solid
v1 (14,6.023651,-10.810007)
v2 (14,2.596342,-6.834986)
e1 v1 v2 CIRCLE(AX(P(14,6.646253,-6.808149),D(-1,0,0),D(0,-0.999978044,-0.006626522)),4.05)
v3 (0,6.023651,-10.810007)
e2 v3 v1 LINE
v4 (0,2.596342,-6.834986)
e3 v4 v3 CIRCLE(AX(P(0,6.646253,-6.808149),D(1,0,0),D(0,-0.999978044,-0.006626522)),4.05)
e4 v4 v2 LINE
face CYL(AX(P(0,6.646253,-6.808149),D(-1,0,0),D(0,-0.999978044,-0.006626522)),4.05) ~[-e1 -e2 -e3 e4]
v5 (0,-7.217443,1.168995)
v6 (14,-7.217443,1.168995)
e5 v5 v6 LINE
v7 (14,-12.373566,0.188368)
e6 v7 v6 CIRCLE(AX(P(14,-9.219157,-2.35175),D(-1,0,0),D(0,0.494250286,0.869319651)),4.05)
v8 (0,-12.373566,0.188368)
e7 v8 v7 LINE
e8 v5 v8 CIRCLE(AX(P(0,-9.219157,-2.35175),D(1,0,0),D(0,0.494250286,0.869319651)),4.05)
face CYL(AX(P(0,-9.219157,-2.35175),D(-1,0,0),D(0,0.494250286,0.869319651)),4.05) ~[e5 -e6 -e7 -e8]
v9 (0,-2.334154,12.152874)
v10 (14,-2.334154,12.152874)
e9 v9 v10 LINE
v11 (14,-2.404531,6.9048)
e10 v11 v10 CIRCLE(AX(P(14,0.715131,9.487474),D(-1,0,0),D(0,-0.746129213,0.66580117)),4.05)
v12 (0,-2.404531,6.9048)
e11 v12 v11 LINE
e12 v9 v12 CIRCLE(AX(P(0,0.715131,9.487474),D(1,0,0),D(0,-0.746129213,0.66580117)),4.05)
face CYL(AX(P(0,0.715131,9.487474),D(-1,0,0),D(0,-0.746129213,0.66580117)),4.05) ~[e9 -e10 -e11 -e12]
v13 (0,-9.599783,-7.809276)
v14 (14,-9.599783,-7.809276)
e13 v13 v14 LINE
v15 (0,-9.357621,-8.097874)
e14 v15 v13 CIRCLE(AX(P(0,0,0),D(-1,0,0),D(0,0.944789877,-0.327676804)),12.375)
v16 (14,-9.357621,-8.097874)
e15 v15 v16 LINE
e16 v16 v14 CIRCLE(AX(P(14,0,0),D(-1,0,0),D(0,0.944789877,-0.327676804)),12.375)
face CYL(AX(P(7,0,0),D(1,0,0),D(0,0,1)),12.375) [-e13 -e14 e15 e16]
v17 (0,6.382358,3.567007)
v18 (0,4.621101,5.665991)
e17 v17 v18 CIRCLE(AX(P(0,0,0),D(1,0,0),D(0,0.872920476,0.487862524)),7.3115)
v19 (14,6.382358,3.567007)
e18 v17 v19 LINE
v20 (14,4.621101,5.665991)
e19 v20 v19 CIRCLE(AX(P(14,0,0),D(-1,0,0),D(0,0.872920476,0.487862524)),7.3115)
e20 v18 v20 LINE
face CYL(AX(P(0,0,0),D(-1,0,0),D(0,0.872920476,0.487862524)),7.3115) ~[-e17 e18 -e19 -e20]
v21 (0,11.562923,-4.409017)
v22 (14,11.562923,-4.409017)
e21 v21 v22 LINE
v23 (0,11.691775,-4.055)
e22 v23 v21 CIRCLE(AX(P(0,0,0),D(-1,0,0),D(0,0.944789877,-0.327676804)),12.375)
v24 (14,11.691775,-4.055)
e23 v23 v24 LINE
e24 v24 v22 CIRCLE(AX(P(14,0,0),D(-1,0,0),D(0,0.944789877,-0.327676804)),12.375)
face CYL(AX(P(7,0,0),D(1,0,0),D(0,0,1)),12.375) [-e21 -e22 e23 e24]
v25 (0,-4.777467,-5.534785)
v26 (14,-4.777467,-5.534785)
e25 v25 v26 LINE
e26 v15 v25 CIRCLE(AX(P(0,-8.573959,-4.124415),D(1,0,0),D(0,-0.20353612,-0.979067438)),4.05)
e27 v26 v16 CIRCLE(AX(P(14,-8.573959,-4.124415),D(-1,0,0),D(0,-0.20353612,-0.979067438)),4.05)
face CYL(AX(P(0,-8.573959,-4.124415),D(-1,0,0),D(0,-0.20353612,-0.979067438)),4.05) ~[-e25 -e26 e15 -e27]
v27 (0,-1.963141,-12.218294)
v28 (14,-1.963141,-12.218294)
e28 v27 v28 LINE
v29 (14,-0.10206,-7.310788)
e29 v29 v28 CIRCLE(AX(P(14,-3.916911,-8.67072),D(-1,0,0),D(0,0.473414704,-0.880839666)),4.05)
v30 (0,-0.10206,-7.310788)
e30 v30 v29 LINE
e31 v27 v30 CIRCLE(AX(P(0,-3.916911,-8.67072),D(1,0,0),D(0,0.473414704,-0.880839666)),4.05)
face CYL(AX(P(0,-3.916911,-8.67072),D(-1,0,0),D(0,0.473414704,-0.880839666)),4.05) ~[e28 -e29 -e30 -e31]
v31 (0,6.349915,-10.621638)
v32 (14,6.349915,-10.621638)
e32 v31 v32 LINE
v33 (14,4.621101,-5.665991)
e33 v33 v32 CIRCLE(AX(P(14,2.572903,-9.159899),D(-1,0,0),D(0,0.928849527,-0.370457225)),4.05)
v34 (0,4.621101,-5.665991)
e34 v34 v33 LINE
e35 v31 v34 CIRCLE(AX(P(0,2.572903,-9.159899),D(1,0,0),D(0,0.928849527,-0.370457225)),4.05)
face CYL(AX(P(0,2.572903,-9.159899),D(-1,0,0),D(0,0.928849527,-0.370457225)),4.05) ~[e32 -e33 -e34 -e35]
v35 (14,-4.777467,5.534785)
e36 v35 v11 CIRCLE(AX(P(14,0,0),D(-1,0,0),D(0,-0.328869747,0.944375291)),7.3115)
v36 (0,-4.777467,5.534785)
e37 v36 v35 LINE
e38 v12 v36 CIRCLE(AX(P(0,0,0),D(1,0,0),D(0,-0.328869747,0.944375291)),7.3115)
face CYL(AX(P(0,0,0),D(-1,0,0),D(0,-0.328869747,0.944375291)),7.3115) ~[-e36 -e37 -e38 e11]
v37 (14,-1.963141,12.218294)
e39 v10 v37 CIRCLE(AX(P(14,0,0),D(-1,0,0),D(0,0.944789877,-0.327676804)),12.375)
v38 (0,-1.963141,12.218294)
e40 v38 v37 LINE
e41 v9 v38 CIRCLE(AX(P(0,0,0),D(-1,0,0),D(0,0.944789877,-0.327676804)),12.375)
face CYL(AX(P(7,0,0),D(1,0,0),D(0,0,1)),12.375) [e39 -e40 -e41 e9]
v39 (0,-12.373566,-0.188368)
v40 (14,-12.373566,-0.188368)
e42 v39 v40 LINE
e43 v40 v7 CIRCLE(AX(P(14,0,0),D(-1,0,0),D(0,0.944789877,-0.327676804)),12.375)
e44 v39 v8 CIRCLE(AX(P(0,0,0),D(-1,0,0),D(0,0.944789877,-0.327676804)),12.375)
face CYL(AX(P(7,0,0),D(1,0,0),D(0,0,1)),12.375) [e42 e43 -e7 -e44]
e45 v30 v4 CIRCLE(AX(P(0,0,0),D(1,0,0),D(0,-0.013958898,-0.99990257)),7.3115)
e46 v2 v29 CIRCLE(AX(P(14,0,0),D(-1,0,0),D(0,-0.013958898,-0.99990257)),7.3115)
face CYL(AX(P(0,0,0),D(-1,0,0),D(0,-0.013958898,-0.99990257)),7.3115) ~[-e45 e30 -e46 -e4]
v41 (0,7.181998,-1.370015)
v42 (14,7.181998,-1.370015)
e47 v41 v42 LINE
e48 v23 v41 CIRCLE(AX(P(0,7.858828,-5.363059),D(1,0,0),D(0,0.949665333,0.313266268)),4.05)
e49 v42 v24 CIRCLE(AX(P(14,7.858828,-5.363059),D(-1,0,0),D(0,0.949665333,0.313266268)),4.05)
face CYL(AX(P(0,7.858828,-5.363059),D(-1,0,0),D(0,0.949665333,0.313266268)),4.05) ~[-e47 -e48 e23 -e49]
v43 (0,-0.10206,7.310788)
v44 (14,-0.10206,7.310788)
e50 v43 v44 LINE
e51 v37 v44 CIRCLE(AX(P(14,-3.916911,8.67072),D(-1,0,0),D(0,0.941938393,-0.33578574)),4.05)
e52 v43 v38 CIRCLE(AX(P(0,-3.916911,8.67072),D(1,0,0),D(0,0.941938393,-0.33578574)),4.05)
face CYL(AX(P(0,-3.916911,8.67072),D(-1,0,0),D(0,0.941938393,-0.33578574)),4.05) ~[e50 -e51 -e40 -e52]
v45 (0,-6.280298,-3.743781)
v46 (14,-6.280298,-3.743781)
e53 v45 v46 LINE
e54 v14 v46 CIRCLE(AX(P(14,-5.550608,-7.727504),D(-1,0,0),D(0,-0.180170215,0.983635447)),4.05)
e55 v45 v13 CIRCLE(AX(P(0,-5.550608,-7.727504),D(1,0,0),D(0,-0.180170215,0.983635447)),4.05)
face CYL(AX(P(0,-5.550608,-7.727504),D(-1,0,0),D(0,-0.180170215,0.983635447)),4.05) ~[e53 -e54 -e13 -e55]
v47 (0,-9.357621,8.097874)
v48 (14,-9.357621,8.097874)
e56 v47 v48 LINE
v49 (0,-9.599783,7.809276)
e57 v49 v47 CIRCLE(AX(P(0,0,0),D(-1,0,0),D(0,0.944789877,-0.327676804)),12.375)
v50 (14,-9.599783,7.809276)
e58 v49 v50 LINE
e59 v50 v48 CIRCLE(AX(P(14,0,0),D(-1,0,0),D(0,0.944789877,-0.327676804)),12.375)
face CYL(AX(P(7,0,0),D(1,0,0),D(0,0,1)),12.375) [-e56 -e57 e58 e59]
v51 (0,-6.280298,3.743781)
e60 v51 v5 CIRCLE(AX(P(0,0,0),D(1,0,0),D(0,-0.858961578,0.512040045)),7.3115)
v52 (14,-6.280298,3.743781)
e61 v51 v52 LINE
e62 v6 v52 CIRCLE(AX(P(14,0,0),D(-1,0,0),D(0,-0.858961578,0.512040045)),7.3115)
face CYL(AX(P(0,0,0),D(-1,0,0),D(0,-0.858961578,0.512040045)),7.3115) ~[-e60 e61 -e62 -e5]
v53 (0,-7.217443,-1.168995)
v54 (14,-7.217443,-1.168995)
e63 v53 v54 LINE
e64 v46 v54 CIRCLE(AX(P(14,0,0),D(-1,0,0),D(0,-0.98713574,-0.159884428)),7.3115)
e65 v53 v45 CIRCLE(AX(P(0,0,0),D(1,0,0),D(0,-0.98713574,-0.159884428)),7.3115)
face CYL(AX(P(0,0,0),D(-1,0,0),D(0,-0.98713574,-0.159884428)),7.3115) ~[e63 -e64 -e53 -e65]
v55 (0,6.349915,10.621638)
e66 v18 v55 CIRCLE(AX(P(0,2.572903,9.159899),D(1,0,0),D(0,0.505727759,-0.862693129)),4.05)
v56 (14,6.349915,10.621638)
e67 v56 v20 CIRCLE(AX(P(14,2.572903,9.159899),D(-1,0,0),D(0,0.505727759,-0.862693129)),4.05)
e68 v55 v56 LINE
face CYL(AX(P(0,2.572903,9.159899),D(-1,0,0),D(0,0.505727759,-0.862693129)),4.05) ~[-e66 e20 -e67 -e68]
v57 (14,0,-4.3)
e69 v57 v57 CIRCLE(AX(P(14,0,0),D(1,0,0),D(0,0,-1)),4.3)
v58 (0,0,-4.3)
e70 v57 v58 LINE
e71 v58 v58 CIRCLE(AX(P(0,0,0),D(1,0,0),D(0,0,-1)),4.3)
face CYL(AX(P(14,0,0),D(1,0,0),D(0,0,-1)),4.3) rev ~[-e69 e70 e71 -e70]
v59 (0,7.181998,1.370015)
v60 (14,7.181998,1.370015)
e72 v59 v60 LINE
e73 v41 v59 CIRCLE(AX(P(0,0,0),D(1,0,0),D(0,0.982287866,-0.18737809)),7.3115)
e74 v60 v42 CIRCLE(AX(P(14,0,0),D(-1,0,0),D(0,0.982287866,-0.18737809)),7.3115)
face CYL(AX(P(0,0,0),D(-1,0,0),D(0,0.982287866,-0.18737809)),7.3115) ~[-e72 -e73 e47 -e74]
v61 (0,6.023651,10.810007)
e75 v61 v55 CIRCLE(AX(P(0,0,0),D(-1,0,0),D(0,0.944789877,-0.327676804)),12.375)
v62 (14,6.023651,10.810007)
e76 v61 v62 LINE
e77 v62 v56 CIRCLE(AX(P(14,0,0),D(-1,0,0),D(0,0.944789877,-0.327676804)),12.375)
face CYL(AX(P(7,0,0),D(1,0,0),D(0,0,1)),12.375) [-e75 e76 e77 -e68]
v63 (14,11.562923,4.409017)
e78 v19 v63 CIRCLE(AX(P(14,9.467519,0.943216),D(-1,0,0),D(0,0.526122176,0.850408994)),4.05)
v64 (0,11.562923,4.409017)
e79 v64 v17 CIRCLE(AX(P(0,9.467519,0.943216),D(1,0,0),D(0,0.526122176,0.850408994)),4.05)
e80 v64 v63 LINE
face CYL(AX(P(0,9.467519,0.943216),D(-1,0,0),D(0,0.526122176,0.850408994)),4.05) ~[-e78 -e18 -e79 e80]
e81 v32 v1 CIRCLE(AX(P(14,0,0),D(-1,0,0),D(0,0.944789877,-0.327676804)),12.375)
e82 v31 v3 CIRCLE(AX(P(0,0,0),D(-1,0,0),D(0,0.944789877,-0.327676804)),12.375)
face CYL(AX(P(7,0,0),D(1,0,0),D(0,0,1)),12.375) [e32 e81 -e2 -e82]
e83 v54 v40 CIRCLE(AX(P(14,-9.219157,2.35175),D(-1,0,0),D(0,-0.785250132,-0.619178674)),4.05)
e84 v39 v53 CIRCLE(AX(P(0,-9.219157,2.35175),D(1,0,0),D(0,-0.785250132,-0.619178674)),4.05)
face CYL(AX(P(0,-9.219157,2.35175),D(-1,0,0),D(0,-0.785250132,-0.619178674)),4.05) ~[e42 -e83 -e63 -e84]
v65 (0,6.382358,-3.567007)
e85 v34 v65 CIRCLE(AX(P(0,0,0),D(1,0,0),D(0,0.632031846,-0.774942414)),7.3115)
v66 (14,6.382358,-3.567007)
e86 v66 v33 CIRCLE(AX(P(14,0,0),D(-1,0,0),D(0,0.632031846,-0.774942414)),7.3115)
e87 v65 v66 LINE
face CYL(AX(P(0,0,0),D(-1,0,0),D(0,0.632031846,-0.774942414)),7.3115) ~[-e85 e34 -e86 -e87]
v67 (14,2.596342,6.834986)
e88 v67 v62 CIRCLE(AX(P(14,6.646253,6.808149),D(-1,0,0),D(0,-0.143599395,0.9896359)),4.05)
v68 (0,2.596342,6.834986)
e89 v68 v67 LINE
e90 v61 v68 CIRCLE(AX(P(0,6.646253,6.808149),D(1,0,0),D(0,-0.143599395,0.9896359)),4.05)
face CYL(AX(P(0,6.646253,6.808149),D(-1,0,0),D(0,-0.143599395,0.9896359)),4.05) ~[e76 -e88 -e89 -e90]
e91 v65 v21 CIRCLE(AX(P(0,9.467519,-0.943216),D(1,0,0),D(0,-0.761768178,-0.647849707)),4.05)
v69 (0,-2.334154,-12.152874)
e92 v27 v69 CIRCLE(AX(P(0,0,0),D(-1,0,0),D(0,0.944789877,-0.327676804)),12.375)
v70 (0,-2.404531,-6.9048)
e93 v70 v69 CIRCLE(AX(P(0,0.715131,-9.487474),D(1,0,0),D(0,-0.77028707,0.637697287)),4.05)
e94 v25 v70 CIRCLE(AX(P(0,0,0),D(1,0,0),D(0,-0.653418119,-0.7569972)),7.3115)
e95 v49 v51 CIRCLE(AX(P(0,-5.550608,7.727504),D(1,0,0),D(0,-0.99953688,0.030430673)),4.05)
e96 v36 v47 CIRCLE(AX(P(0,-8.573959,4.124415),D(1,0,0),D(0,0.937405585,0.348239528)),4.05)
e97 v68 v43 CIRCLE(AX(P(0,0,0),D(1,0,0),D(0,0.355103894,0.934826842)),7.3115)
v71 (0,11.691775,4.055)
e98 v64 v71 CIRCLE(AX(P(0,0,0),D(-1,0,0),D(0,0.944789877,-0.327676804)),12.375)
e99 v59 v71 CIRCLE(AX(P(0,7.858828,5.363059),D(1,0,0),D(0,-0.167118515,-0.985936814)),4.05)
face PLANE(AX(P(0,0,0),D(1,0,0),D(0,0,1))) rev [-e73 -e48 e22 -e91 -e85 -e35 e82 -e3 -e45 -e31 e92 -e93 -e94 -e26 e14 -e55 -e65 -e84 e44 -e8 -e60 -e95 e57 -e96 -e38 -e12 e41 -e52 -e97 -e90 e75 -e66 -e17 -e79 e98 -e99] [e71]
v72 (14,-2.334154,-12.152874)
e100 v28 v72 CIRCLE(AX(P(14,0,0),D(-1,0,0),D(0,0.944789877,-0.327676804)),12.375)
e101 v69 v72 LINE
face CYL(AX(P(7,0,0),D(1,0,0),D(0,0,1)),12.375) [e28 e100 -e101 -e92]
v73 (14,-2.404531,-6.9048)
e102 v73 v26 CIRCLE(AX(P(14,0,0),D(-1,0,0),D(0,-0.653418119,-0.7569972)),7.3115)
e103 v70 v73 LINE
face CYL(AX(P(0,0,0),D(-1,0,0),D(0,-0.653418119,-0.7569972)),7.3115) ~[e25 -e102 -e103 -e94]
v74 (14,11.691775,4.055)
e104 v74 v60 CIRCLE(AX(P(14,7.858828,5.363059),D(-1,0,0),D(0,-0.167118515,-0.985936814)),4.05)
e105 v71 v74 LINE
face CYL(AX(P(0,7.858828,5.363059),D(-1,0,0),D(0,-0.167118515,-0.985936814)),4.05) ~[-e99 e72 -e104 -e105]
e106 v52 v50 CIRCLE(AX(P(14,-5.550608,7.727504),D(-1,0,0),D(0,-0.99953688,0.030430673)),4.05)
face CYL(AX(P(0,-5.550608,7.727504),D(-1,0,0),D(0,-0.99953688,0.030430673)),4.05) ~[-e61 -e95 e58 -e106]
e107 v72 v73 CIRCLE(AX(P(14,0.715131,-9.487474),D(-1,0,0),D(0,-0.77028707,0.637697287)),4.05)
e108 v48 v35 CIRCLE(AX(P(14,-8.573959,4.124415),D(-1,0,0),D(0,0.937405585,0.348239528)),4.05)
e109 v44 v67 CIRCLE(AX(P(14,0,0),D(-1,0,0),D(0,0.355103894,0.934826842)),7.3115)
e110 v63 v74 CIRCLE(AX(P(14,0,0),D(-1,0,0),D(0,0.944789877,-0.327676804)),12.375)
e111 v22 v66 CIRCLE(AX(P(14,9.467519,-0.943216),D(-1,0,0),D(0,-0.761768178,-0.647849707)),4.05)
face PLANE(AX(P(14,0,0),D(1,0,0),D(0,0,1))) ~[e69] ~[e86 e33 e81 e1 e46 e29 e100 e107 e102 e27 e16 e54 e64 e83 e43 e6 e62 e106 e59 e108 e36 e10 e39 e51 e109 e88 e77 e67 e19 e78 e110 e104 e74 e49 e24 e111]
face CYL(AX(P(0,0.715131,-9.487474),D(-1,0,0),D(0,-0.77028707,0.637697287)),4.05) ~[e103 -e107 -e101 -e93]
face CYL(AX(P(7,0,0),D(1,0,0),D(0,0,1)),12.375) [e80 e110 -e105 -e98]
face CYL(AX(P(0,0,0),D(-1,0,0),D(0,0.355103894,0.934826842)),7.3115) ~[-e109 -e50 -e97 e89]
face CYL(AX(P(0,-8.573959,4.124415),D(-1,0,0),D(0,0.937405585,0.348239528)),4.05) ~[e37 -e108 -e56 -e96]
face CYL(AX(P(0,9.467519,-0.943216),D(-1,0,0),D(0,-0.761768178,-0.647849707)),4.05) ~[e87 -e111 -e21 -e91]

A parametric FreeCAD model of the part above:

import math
import FreeCAD as App
import Part
import Sketcher

V = App.Vector
Q = App.Units.Quantity

doc = App.newDocument("Part")
body = doc.addObject("PartDesign::Body", "Body")

# Sketch on XZ plane
sketch1 = body.newObject("Sketcher::SketchObject", "Sketch")
sketch1.AttachmentSupport = (doc.getObject("XZ_Plane"), [""])
sketch1.MapMode = "FlatFace"
sketch1.addGeometry(Part.LineSegment(V(0, -12, 0), V(0, 0, 0)), False)
sketch1.addGeometry(Part.LineSegment(V(0, 0, 0), V(14, 0, 0)), False)
sketch1.addGeometry(Part.LineSegment(V(14, 0, 0), V(14, -12, 0)), False)
sketch1.addGeometry(Part.LineSegment(V(14, -12, 0), V(0, -12, 0)), False)
sketch1.addConstraint(Sketcher.Constraint("Coincident", 0, 2, 1, 1))
sketch1.addConstraint(Sketcher.Constraint("Coincident", 1, 2, 2, 1))
sketch1.addConstraint(Sketcher.Constraint("Coincident", 2, 2, 3, 1))
sketch1.addConstraint(Sketcher.Constraint("Coincident", 3, 2, 0, 1))
sketch1.addConstraint(Sketcher.Constraint("Vertical", 0))
sketch1.addConstraint(Sketcher.Constraint("Horizontal", 1))
sketch1.addConstraint(Sketcher.Constraint("Vertical", 2))
sketch1.addConstraint(Sketcher.Constraint("Horizontal", 3))
sketch1.addConstraint(Sketcher.Constraint("Coincident", 0, 2, -1, 1))
sketch1.addConstraint(Sketcher.Constraint("DistanceX", 1, 1, 1, 2, Q("14 mm")))
sketch1.addConstraint(Sketcher.Constraint("DistanceY", 0, 1, 0, 2, Q("12.375 mm")))
revolution = body.newObject("PartDesign::Revolution", "Revolution")
revolution.Profile = sketch1
revolution.ReferenceAxis = (sketch1, ["H_Axis"])
revolution.Angle = 360

# Sketch on YZ plane
sketch2 = body.newObject("Sketcher::SketchObject", "Sketch001")
sketch2.AttachmentSupport = (doc.getObject("YZ_Plane"), [""])
sketch2.MapMode = "FlatFace"
sketch2.addGeometry(Part.ArcOfCircle(Part.Circle(V(0, 0, 0), V(0, 0, 1), 7.3), math.radians(-11), math.radians(11)), False)
sketch2.addGeometry(Part.ArcOfCircle(Part.Circle(V(7.9, -5.4, 0), V(0, 0, 1), 4.1), math.radians(18), math.radians(100)), False)
sketch2.addGeometry(Part.ArcOfCircle(Part.Circle(V(0, 0, 0), V(0, 0, 1), 12.4), math.radians(-19), math.radians(19)), False)
sketch2.addGeometry(Part.ArcOfCircle(Part.Circle(V(7.9, 5.4, 0), V(0, 0, 1), 4.1), math.radians(-100), math.radians(-18)), False)
sketch2.addConstraint(Sketcher.Constraint("Coincident", 0, 1, 1, 2))
sketch2.addConstraint(Sketcher.Constraint("Coincident", 1, 1, 2, 1))
sketch2.addConstraint(Sketcher.Constraint("Coincident", 2, 2, 3, 2))
sketch2.addConstraint(Sketcher.Constraint("Coincident", 3, 1, 0, 2))
sketch2.addConstraint(Sketcher.Constraint("Coincident", 0, 3, -1, 1))
sketch2.addConstraint(Sketcher.Constraint("Coincident", 2, 3, -1, 1))
sketch2.addConstraint(Sketcher.Constraint("Equal", 1, 3))
sketch2.addConstraint(Sketcher.Constraint("Symmetric", 1, 3, 3, 3, -1))
sketch2.addConstraint(Sketcher.Constraint("Radius", 1, Q("4.05 mm")))
sketch2.addConstraint(Sketcher.Constraint("Radius", 0, Q("7.3115 mm")))
sketch2.addConstraint(Sketcher.Constraint("Radius", 2, Q("12.4004 mm")))
sketch2.addConstraint(Sketcher.Constraint("DistanceY", 1, 3, -1, 1, Q("5.363059 mm")))
sketch2.addConstraint(Sketcher.Constraint("DistanceY", 1, 1, -1, 1, Q("4.094331 mm")))
pocket1 = body.newObject("PartDesign::Pocket", "Pocket")
pocket1.Profile = sketch2
pocket1.Type = "ThroughAll"
pocket1.Reversed = True
doc.recompute()

polarpattern = body.newObject("PartDesign::PolarPattern", "PolarPattern")
polarpattern.Originals = [pocket1]
polarpattern.Axis = (doc.getObject("X_Axis"), [""])
polarpattern.Angle = 360
polarpattern.Occurrences = 9
body.Tip = polarpattern

# Sketch on YZ plane
sketch3 = body.newObject("Sketcher::SketchObject", "Sketch002")
sketch3.AttachmentSupport = (doc.getObject("YZ_Plane"), [""])
sketch3.MapMode = "FlatFace"
sketch3.addGeometry(Part.Circle(V(0, 0, 0), V(0, 0, 1), 4), False)
sketch3.addConstraint(Sketcher.Constraint("Coincident", 0, 3, -1, 1))
sketch3.addConstraint(Sketcher.Constraint("Diameter", 0, Q("8 mm")))
pocket2 = body.newObject("PartDesign::Pocket", "Pocket001")
pocket2.Profile = sketch3
pocket2.Length = 100.000102
pocket2.Midplane = True

# Sketch on YZ plane
sketch4 = body.newObject("Sketcher::SketchObject", "Sketch003")
sketch4.AttachmentSupport = (doc.getObject("YZ_Plane"), [""])
sketch4.MapMode = "FlatFace"
sketch4.AttachmentOffset = App.Placement(V(0, 0, 14), App.Rotation())
sketch4.addGeometry(Part.Circle(V(0, 0, 0), V(0, 0, 1), 4.3), False)
sketch4.addConstraint(Sketcher.Constraint("Coincident", 0, 3, -1, 1))
sketch4.addConstraint(Sketcher.Constraint("Diameter", 0, Q("8.6 mm")))
pocket3 = body.newObject("PartDesign::Pocket", "Pocket002")
pocket3.Profile = sketch4
pocket3.Type = "ThroughAll"

doc.recompute()
